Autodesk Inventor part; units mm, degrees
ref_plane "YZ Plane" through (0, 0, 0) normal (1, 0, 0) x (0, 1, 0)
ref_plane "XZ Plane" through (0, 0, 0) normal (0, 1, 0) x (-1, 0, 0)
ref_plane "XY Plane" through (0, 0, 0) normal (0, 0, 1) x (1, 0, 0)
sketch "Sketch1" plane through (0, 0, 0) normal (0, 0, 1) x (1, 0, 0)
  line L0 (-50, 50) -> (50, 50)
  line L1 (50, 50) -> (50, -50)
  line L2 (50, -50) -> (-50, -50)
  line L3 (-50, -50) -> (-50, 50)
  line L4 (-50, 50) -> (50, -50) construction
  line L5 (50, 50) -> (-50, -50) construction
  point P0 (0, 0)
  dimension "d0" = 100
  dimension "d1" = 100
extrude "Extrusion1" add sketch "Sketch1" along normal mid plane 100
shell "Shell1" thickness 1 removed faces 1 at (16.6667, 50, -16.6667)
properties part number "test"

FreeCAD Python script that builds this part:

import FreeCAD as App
import Part
import Sketcher
Q = App.Units.Quantity


def faces_at(feature, points):
    """Names of the faces that lie closest to the given points."""
    faces = feature.Shape.Faces
    near = lambda p: min(range(len(faces)), key=lambda i: faces[i].distToShape(Part.Vertex(*p))[0])
    return sorted({f"Face{near(p) + 1}" for p in points})


def add_polygon(sketch, points):
    """Adds a closed chain of lines whose ends are joined by coincident constraints."""
    first, n = sketch.GeometryCount, len(points)
    for a, b in zip(points, points[1:] + points[:1]):
        sketch.addGeometry(Part.LineSegment(App.Vector(*a, 0), App.Vector(*b, 0)), False)
    for i in range(n):
        sketch.addConstraint(Sketcher.Constraint("Coincident", first + i, 2, first + (i + 1) % n, 1))

doc = App.newDocument("Part")
body = doc.addObject("PartDesign::Body", "Body")

# Sketch on XY plane
sketch1 = body.newObject("Sketcher::SketchObject", "Sketch")
sketch1.AttachmentSupport = (doc.getObject("XY_Plane"), [""])
sketch1.MapMode = "FlatFace"
add_polygon(sketch1, [(50, 50), (-50, 50), (-50, -50), (50, -50)])  # lines 0-3
sketch1.addConstraint([
    Sketcher.Constraint("Horizontal", 0),
    Sketcher.Constraint("Vertical", 1),
    Sketcher.Constraint("Horizontal", 2),
    Sketcher.Constraint("Vertical", 3),
    Sketcher.Constraint("Symmetric", 0, 2, 2, 2, -1, 1),
    Sketcher.Constraint("Equal", 2, 1),
    Sketcher.Constraint("DistanceX", 0, 2, 0, 1, Q("100 mm")),
])
pad1 = body.newObject("PartDesign::Pad", "Pad")
pad1.Profile = sketch1
pad1.Length = 100
pad1.Midplane = True
doc.recompute()

thickness = body.newObject("PartDesign::Thickness", "Thickness")
thickness.Base = (pad1, faces_at(pad1, [(16.667, 50, -16.667)]))
thickness.Value = 1
thickness.Reversed = True
thickness.Join = "Intersection"

doc.recompute()
